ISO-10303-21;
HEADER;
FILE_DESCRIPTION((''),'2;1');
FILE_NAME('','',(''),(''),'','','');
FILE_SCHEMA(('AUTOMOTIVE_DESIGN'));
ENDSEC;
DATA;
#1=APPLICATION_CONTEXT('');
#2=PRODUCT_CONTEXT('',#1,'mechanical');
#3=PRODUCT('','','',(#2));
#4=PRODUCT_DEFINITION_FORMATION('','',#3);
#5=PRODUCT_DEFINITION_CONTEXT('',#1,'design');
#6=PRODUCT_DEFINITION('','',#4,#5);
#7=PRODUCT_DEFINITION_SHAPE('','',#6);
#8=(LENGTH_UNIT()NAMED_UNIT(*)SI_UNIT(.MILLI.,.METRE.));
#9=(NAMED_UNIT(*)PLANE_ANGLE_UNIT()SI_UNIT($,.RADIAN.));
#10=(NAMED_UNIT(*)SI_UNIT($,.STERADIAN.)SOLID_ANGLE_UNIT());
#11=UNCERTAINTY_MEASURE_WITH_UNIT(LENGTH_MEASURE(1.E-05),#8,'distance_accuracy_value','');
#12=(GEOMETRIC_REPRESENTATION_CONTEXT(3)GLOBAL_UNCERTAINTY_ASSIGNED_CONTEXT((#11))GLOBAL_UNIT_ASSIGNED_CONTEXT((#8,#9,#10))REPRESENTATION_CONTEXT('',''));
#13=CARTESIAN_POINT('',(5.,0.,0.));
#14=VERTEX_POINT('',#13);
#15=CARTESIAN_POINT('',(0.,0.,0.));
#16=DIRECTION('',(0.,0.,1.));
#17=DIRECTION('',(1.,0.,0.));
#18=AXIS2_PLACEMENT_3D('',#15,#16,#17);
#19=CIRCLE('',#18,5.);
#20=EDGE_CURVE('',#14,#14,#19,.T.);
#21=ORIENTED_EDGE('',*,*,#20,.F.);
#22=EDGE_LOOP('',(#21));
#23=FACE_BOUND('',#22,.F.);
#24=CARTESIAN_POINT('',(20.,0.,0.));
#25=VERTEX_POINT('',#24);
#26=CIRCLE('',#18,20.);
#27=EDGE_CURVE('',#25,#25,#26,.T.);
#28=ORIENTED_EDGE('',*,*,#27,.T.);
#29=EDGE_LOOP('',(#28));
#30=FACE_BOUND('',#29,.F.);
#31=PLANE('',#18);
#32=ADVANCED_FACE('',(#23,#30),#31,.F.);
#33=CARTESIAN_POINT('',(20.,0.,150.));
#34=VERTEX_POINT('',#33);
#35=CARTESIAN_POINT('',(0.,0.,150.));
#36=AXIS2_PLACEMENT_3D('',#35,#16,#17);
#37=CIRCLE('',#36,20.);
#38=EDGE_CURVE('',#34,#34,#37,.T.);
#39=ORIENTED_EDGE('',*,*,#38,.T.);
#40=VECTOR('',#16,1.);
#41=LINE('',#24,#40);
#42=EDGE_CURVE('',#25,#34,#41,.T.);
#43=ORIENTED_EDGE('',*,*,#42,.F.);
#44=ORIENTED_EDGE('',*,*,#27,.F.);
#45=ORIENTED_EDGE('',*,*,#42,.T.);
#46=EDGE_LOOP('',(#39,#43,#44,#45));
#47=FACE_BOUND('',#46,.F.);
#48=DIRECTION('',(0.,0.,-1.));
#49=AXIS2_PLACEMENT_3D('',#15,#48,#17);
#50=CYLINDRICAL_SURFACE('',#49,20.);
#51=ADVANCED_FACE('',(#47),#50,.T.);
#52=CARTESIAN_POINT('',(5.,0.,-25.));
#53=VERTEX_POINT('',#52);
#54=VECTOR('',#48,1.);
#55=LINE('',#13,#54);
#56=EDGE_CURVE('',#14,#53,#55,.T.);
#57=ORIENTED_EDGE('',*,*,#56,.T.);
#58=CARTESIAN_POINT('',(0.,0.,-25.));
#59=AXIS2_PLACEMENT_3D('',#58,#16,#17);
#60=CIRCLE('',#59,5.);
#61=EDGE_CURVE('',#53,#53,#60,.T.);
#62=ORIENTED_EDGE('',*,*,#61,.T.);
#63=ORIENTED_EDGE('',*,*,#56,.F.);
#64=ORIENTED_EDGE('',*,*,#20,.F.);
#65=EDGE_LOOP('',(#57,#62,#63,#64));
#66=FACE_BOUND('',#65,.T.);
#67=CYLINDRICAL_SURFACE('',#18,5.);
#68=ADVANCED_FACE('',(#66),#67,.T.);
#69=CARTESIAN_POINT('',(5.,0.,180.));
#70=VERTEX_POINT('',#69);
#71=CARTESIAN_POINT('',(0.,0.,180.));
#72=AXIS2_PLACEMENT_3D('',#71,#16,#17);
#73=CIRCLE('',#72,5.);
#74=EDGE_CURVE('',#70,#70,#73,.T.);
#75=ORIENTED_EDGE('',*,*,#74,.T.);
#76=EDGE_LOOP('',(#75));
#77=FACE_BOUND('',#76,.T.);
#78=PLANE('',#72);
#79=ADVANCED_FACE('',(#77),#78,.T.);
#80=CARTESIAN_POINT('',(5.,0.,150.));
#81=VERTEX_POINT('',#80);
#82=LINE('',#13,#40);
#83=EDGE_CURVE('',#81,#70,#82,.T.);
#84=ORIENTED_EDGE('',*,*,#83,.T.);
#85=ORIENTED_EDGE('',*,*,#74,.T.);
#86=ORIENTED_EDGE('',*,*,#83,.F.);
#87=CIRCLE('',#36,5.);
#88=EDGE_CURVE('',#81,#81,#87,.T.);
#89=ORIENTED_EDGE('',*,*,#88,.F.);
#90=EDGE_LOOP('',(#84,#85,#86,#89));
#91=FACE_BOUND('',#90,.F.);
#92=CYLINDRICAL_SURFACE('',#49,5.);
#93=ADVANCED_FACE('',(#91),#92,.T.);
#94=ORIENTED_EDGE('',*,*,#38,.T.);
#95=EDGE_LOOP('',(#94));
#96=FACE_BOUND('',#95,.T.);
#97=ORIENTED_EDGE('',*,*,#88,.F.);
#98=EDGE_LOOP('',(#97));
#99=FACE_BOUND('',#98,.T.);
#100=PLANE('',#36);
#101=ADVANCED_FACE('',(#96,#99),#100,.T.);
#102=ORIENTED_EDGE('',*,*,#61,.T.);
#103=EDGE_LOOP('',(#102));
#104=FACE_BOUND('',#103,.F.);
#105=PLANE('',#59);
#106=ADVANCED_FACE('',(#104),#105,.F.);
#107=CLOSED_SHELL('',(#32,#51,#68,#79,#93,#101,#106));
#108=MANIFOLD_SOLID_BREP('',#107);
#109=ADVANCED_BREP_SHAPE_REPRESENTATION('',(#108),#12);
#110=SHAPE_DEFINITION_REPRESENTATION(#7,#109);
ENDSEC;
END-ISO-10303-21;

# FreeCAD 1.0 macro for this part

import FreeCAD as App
import Part
import Sketcher
from FreeCAD import Vector

doc = App.newDocument("Part")
params = doc.addObject("Spreadsheet::Sheet", "Params")
for row, (alias, value) in enumerate([
    ("sketch1_diameter", "40 mm"),
    ("sketch1_diameter2", "10 mm"),
    ("pad1_length", "150 mm"),
    ("sketch2_diameter", "10 mm"),
    ("pad2_length", "180 mm"),
    ("pad2_length2", "25 mm"),
], start=1):
    params.set(f"A{row}", alias)
    params.set(f"B{row}", "=" + value)
    params.setAlias(f"B{row}", alias)

body = doc.addObject("PartDesign::Body", "Body")

# Sketch on XY plane
sketch1 = body.newObject("Sketcher::SketchObject", "Sketch")
sketch1.AttachmentSupport = (doc.getObject("XY_Plane"), [""])
sketch1.MapMode = "FlatFace"
sketch1.addGeometry(Part.Circle(Vector(0, 0, 0), Vector(0, 0, 1), 20), False)
sketch1.addGeometry(Part.Circle(Vector(0, 0, 0), Vector(0, 0, 1), 5), False)
sketch1.addConstraint(Sketcher.Constraint("Coincident", 0, 3, -1, 1))
sketch1.addConstraint(Sketcher.Constraint("Coincident", 1, 3, -1, 1))
sketch1.addConstraint(Sketcher.Constraint("Diameter", 0, 40.0))
sketch1.addConstraint(Sketcher.Constraint("Diameter", 1, 10.0))
sketch1.setExpression("Constraints[2]", "Params.sketch1_diameter")
sketch1.setExpression("Constraints[3]", "Params.sketch1_diameter2")
pad1 = body.newObject("PartDesign::Pad", "Pad")
pad1.Profile = sketch1
pad1.setExpression("Length", "Params.pad1_length")

# Sketch on XY plane
sketch2 = body.newObject("Sketcher::SketchObject", "Sketch001")
sketch2.AttachmentSupport = (doc.getObject("XY_Plane"), [""])
sketch2.MapMode = "FlatFace"
sketch2.addGeometry(Part.Circle(Vector(0, 0, 0), Vector(0, 0, 1), 5), False)
sketch2.addConstraint(Sketcher.Constraint("Coincident", 0, 3, -1, 1))
sketch2.addConstraint(Sketcher.Constraint("Diameter", 0, 10.0))
sketch2.setExpression("Constraints[1]", "Params.sketch2_diameter")
pad2 = body.newObject("PartDesign::Pad", "Pad001")
pad2.Profile = sketch2
pad2.Type = "TwoLengths"
pad2.setExpression("Length", "Params.pad2_length")
pad2.setExpression("Length2", "Params.pad2_length2")

doc.recompute()
